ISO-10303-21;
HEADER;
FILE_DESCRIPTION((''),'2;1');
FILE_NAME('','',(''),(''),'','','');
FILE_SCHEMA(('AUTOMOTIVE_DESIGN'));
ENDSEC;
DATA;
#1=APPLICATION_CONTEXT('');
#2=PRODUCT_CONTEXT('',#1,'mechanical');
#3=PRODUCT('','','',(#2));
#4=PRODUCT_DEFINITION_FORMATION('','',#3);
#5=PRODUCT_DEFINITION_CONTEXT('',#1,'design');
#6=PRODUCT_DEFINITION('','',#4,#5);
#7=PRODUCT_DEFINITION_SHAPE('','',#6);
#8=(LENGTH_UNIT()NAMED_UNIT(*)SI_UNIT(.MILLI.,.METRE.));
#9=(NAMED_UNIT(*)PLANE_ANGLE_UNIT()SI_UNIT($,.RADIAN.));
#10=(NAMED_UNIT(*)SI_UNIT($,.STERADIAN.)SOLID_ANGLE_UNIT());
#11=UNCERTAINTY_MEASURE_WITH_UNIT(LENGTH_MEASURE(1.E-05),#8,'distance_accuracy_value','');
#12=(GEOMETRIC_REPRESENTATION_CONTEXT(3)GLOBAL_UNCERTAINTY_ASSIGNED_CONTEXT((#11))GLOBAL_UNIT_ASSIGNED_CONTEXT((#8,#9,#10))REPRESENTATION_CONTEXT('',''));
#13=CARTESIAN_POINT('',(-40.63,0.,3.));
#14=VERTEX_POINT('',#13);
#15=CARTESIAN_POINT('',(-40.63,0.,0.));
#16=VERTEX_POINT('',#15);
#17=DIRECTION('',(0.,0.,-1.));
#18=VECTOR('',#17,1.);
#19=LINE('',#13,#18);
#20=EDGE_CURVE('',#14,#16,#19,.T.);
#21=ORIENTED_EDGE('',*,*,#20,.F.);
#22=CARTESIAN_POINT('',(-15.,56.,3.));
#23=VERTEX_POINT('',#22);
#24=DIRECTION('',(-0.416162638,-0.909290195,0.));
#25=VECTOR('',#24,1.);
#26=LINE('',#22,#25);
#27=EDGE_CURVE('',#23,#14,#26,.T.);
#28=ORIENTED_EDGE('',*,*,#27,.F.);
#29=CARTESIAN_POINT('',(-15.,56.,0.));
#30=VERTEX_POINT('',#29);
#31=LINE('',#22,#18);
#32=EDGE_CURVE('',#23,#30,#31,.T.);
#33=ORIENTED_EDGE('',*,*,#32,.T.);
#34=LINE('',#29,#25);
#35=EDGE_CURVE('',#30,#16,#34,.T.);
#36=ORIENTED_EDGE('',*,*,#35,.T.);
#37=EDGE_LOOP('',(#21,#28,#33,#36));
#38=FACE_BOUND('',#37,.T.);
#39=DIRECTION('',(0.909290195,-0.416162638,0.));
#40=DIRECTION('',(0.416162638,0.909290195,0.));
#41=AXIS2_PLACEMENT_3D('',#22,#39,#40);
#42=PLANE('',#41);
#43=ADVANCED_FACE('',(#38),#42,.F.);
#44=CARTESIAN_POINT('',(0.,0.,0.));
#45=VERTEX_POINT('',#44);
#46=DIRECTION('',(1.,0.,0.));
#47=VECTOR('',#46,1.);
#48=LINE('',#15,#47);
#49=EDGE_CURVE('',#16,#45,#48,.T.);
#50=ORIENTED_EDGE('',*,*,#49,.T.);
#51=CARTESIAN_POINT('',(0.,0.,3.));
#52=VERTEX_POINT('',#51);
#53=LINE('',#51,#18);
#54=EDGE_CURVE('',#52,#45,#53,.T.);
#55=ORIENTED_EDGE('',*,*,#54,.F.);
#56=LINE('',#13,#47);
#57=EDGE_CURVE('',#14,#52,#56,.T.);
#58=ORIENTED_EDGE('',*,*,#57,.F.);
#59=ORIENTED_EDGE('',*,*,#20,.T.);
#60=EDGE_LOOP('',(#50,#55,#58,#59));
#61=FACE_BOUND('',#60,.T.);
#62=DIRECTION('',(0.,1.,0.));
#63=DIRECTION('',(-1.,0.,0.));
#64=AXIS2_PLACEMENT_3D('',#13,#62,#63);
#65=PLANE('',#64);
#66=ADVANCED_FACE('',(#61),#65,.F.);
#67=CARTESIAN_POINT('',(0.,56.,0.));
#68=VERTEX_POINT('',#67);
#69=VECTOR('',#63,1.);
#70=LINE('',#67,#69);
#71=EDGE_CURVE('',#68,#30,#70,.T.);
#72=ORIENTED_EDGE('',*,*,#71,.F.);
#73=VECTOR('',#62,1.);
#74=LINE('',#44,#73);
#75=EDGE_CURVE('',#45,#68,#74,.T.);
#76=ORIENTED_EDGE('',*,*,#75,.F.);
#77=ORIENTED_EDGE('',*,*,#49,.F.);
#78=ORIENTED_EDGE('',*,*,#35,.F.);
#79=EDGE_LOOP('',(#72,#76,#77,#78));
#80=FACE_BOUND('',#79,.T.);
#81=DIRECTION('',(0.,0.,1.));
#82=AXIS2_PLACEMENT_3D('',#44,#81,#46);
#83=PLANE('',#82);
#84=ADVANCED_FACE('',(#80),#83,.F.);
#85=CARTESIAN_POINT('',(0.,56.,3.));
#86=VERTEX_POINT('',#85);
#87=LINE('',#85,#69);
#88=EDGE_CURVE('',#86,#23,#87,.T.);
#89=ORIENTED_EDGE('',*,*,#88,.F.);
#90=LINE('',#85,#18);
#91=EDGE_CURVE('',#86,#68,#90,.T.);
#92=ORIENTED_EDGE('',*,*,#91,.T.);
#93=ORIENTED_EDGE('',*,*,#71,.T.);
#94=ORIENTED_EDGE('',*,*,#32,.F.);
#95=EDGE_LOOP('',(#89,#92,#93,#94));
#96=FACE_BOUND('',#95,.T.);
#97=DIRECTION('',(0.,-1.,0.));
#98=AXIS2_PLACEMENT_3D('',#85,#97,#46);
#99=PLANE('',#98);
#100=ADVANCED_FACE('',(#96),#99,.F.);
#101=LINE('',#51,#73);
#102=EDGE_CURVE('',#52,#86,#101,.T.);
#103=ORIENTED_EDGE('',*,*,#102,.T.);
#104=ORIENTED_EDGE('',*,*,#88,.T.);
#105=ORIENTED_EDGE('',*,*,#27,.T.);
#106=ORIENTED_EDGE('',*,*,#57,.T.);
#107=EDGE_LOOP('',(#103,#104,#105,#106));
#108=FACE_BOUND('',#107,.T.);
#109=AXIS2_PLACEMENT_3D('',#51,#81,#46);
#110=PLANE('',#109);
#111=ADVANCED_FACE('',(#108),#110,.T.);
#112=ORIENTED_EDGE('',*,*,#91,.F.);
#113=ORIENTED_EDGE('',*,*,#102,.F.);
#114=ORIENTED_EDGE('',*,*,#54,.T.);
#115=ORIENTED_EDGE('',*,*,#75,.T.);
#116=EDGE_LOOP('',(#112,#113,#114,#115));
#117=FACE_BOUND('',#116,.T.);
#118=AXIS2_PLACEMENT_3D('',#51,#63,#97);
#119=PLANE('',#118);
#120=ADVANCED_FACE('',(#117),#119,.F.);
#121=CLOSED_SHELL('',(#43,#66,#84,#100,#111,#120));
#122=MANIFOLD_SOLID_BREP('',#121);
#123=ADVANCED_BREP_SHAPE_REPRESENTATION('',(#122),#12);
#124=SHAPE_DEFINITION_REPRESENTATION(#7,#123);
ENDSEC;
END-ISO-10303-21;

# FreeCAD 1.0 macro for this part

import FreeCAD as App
import Part
import Sketcher

V = App.Vector

doc = App.newDocument("Part")
params = doc.addObject("Spreadsheet::Sheet", "Params")
for row, (alias, value) in enumerate([
    ("sketch1_width", "15 mm"),
    ("sketch1_height", "56 mm"),
    ("sketch1_width2", "40.63 mm"),
    ("pad1_length", "3 mm"),
], start=1):
    params.set(f"A{row}", alias)
    params.set(f"B{row}", "=" + value)
    params.setAlias(f"B{row}", alias)

body = doc.addObject("PartDesign::Body", "Body")

sketch1 = body.newObject("Sketcher::SketchObject", "Sketch")
sketch1.AttachmentSupport = (doc.getObject("XY_Plane"), [""])
sketch1.MapMode = "FlatFace"
sketch1.addGeometry([
    Part.LineSegment(V(0, 0, 0), V(0, 56, 0)),
    Part.LineSegment(V(0, 56, 0), V(-15, 56, 0)),
    Part.LineSegment(V(-15, 56, 0), V(-40.63, 0, 0)),
    Part.LineSegment(V(-40.63, 0, 0), V(0, 0, 0)),
], False)
sketch1.addConstraint([
    Sketcher.Constraint("Coincident", 0, 2, 1, 1),
    Sketcher.Constraint("Coincident", 1, 2, 2, 1),
    Sketcher.Constraint("Coincident", 2, 2, 3, 1),
    Sketcher.Constraint("Coincident", 3, 2, 0, 1),
    Sketcher.Constraint("Vertical", 0),
    Sketcher.Constraint("Horizontal", 1),
    Sketcher.Constraint("Horizontal", 3),
    Sketcher.Constraint("Coincident", 3, 2, -1, 1),
    Sketcher.Constraint("DistanceX", 1, 2, 1, 1, 15.0),
    Sketcher.Constraint("DistanceY", 0, 1, 0, 2, 56.0),
    Sketcher.Constraint("DistanceX", 3, 1, 3, 2, 40.63),
])
sketch1.setExpression("Constraints[8]", "Params.sketch1_width")
sketch1.setExpression("Constraints[9]", "Params.sketch1_height")
sketch1.setExpression("Constraints[10]", "Params.sketch1_width2")
pad1 = body.newObject("PartDesign::Pad", "Pad")
pad1.Profile = sketch1
pad1.setExpression("Length", "Params.pad1_length")

doc.recompute()
